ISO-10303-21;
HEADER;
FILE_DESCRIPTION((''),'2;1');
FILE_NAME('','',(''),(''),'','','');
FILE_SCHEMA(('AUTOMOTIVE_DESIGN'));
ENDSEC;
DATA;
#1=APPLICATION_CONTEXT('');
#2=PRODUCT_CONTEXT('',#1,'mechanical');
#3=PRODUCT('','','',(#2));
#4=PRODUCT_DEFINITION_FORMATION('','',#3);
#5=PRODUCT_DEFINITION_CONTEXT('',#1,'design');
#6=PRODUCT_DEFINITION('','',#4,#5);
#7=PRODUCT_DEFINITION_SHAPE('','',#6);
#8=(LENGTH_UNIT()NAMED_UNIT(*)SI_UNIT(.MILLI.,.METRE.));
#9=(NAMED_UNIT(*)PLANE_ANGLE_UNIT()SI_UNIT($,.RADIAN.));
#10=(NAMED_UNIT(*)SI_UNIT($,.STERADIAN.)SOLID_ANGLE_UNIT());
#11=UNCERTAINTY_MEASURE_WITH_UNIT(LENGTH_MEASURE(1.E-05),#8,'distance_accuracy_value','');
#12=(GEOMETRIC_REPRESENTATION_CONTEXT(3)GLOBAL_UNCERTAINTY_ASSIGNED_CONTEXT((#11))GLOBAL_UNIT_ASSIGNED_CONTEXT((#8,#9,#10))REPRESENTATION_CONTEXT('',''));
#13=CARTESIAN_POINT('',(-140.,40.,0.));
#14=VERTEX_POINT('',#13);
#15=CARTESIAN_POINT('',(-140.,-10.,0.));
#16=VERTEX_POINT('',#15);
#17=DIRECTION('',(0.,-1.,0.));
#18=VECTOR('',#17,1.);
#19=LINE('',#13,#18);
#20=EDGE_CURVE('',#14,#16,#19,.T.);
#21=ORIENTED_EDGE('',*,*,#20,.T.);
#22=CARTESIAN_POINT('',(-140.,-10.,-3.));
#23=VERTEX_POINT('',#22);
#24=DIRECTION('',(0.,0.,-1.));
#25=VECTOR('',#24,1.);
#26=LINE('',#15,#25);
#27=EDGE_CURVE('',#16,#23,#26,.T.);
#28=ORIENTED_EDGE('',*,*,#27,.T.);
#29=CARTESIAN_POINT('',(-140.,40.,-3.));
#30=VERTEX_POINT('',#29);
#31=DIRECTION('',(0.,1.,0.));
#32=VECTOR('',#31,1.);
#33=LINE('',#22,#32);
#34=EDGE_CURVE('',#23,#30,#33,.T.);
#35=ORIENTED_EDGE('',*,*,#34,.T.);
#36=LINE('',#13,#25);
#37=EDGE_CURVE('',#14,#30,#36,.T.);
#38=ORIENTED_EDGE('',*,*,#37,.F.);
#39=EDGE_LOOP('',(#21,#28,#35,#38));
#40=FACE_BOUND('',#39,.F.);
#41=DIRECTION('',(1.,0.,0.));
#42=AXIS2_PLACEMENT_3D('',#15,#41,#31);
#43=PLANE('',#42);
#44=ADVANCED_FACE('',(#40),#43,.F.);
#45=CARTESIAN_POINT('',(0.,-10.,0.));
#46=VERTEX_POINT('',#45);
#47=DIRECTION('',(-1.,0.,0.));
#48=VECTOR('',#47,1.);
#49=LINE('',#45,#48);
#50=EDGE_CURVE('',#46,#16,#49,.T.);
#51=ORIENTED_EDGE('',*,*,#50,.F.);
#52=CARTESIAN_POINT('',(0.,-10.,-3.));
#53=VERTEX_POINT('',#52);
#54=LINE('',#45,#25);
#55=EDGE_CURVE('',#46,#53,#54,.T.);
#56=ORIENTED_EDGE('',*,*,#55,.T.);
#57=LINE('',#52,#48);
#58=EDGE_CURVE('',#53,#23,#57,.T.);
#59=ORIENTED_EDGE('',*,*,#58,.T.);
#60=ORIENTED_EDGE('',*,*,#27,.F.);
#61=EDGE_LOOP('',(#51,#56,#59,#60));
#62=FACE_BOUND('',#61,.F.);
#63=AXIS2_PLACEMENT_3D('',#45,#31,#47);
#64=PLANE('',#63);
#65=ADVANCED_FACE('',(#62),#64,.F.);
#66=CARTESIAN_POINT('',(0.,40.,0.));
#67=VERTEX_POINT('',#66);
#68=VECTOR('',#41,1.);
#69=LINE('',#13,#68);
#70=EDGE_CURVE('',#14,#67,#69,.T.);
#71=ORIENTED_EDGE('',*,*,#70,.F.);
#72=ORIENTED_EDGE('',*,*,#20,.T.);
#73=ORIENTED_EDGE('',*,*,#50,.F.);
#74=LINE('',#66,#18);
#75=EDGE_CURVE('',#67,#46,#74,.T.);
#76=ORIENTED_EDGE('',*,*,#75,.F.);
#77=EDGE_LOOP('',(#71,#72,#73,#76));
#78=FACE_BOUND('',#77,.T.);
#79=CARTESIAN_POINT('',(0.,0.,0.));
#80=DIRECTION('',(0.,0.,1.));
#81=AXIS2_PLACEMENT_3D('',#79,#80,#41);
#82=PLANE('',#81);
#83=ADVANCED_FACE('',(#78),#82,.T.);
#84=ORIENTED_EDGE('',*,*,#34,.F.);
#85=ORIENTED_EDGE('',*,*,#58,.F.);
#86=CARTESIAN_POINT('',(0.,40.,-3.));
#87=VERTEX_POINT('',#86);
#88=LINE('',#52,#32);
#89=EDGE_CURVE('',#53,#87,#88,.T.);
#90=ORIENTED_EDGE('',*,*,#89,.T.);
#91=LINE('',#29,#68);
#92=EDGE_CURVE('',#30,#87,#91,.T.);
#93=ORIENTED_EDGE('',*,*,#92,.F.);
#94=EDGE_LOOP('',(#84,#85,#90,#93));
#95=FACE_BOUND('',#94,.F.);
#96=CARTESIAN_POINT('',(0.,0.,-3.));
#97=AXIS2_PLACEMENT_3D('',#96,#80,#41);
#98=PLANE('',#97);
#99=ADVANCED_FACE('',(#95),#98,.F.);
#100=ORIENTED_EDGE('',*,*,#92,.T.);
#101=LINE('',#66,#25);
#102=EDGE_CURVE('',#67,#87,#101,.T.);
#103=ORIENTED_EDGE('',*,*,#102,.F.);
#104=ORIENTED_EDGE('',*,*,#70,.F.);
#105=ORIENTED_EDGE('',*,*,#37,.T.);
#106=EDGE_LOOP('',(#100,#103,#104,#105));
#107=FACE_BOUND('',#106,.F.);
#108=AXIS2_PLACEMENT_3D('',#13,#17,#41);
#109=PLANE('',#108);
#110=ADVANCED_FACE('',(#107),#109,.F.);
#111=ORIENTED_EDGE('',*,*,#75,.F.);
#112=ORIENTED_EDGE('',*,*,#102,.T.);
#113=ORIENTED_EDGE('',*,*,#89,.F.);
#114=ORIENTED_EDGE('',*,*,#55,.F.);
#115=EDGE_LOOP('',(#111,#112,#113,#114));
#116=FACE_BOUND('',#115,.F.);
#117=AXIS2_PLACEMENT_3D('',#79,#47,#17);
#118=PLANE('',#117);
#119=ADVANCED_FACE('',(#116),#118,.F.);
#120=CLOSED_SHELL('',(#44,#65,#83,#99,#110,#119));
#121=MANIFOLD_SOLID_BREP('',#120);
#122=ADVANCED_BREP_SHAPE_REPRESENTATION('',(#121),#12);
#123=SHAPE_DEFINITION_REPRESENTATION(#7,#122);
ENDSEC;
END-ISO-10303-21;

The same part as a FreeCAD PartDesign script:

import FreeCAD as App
import Part
import Sketcher

V = App.Vector

doc = App.newDocument("Part")
params = doc.addObject("Spreadsheet::Sheet", "Params")
for row, (alias, value) in enumerate([
    ("sketch1_width", "140 mm"),
    ("pad1_length", "3 mm"),
], start=1):
    params.set(f"A{row}", alias)
    params.set(f"B{row}", "=" + value)
    params.setAlias(f"B{row}", alias)

body = doc.addObject("PartDesign::Body", "Body")

sketch1 = body.newObject("Sketcher::SketchObject", "Sketch")
sketch1.AttachmentSupport = (doc.getObject("XY_Plane"), [""])
sketch1.MapMode = "FlatFace"
sketch1.addGeometry([
    Part.LineSegment(V(0, -10, 0), V(0, 40, 0)),
    Part.LineSegment(V(0, 40, 0), V(-140, 40, 0)),
    Part.LineSegment(V(-140, 40, 0), V(-140, -10, 0)),
    Part.LineSegment(V(-140, -10, 0), V(0, -10, 0)),
], False)
sketch1.addConstraint([
    Sketcher.Constraint("Coincident", 0, 2, 1, 1),
    Sketcher.Constraint("Coincident", 1, 2, 2, 1),
    Sketcher.Constraint("Coincident", 2, 2, 3, 1),
    Sketcher.Constraint("Coincident", 3, 2, 0, 1),
    Sketcher.Constraint("Vertical", 0),
    Sketcher.Constraint("Horizontal", 1),
    Sketcher.Constraint("Vertical", 2),
    Sketcher.Constraint("Horizontal", 3),
    Sketcher.Constraint("PointOnObject", 0, 2, -2),
    Sketcher.Constraint("DistanceX", 1, 2, 1, 1, 140.0),
    Sketcher.Constraint("DistanceY", -1, 1, 0, 2, 40.0),
    Sketcher.Constraint("DistanceY", 2, 2, -1, 1, 10.0),
])
sketch1.setExpression("Constraints[9]", "Params.sketch1_width")
pad1 = body.newObject("PartDesign::Pad", "Pad")
pad1.Profile = sketch1
pad1.setExpression("Length", "Params.pad1_length")
pad1.Reversed = True

doc.recompute()
